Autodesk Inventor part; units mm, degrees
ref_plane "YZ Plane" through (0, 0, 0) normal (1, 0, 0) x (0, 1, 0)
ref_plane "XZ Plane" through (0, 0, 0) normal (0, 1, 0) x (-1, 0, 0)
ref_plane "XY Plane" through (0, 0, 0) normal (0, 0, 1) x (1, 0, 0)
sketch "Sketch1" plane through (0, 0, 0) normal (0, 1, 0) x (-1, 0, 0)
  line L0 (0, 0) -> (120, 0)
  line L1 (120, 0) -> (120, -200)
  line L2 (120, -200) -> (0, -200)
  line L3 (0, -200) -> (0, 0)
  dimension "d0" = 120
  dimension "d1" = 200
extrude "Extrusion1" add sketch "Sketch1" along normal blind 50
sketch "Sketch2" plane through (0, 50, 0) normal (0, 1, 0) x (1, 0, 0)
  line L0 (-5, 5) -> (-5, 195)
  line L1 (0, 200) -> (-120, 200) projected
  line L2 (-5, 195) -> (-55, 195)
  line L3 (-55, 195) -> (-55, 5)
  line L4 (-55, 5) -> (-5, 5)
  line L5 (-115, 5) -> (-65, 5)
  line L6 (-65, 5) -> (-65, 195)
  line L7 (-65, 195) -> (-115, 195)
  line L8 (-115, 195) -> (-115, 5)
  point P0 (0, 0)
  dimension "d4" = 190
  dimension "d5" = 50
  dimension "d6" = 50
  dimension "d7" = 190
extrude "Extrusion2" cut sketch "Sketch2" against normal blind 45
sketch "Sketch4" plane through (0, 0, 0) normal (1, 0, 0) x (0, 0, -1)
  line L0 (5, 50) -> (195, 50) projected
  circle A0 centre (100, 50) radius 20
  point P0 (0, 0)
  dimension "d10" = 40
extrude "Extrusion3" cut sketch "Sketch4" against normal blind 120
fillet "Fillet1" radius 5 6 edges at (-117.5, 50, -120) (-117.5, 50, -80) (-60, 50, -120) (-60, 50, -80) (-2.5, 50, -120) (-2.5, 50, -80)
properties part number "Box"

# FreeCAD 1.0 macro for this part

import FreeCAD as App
import Part
import Sketcher


def edges_at(feature, points):
    """Names of the edges that pass closest to the given points."""
    edges = feature.Shape.Edges
    near = lambda p: min(range(len(edges)), key=lambda i: edges[i].distToShape(Part.Vertex(*p))[0])
    return sorted({f"Edge{near(p) + 1}" for p in points})

doc = App.newDocument("Part")
body = doc.addObject("PartDesign::Body", "Body")

sketch1 = body.newObject("Sketcher::SketchObject", "Sketch")
sketch1.AttachmentSupport = (doc.getObject("XZ_Plane"), [""])
sketch1.MapMode = "FlatFace"
sketch1.addGeometry([
    Part.LineSegment(App.Vector(-120, 0, 0), App.Vector(0, 0, 0)),
    Part.LineSegment(App.Vector(0, 0, 0), App.Vector(0, -200, 0)),
    Part.LineSegment(App.Vector(0, -200, 0), App.Vector(-120, -200, 0)),
    Part.LineSegment(App.Vector(-120, -200, 0), App.Vector(-120, 0, 0)),
], False)
sketch1.addConstraint([
    Sketcher.Constraint("Coincident", 0, 2, 1, 1),
    Sketcher.Constraint("Coincident", 1, 2, 2, 1),
    Sketcher.Constraint("Coincident", 2, 2, 3, 1),
    Sketcher.Constraint("Coincident", 3, 2, 0, 1),
    Sketcher.Constraint("Horizontal", 0),
    Sketcher.Constraint("Vertical", 1),
    Sketcher.Constraint("Horizontal", 2),
    Sketcher.Constraint("Vertical", 3),
    Sketcher.Constraint("Coincident", 0, 2, -1, 1),
    Sketcher.Constraint("DistanceX", 0, 1, 0, 2, 120.0),
    Sketcher.Constraint("DistanceY", 1, 2, 1, 1, 200.0),
])
pad1 = body.newObject("PartDesign::Pad", "Pad")
pad1.Profile = sketch1
pad1.Length = 50
pad1.Reversed = True

sketch2 = body.newObject("Sketcher::SketchObject", "Sketch001")
sketch2.AttachmentSupport = (doc.getObject("XZ_Plane"), [""])
sketch2.MapMode = "FlatFace"
sketch2.AttachmentOffset = App.Placement(App.Vector(0, 0, -50), App.Rotation())
sketch2.addGeometry([
    Part.LineSegment(App.Vector(-55, -5, 0), App.Vector(-5, -5, 0)),
    Part.LineSegment(App.Vector(-5, -5, 0), App.Vector(-5, -195, 0)),
    Part.LineSegment(App.Vector(-5, -195, 0), App.Vector(-55, -195, 0)),
    Part.LineSegment(App.Vector(-55, -195, 0), App.Vector(-55, -5, 0)),
    Part.LineSegment(App.Vector(-115, -195, 0), App.Vector(-115, -5, 0)),
    Part.LineSegment(App.Vector(-115, -5, 0), App.Vector(-65, -5, 0)),
    Part.LineSegment(App.Vector(-65, -5, 0), App.Vector(-65, -195, 0)),
    Part.LineSegment(App.Vector(-65, -195, 0), App.Vector(-115, -195, 0)),
], False)
sketch2.addConstraint([
    Sketcher.Constraint("Coincident", 0, 2, 1, 1),
    Sketcher.Constraint("Coincident", 1, 2, 2, 1),
    Sketcher.Constraint("Coincident", 2, 2, 3, 1),
    Sketcher.Constraint("Coincident", 3, 2, 0, 1),
    Sketcher.Constraint("Coincident", 4, 2, 5, 1),
    Sketcher.Constraint("Coincident", 5, 2, 6, 1),
    Sketcher.Constraint("Coincident", 6, 2, 7, 1),
    Sketcher.Constraint("Coincident", 7, 2, 4, 1),
    Sketcher.Constraint("Horizontal", 0),
    Sketcher.Constraint("Vertical", 1),
    Sketcher.Constraint("Horizontal", 2),
    Sketcher.Constraint("Vertical", 3),
    Sketcher.Constraint("Vertical", 4),
    Sketcher.Constraint("Horizontal", 5),
    Sketcher.Constraint("Vertical", 6),
    Sketcher.Constraint("Horizontal", 7),
    Sketcher.Constraint("Horizontal", 3, 2, 4, 2),
    Sketcher.Constraint("Horizontal", 2, 2, 6, 2),
    Sketcher.Constraint("Equal", 2, 5),
    Sketcher.Constraint("DistanceX", 0, 1, 0, 2, 50.0),
    Sketcher.Constraint("DistanceY", 1, 2, 1, 1, 190.0),
    Sketcher.Constraint("DistanceX", 0, 2, -1, 1, 5.0),
    Sketcher.Constraint("DistanceY", 0, 2, -1, 1, 5.0),
    Sketcher.Constraint("DistanceX", 4, 2, -1, 1, 115.0),
])
pocket1 = body.newObject("PartDesign::Pocket", "Pocket")
pocket1.Profile = sketch2
pocket1.Length = 45
pocket1.Reversed = True

sketch3 = body.newObject("Sketcher::SketchObject", "Sketch002")
sketch3.AttachmentSupport = (doc.getObject("YZ_Plane"), [""])
sketch3.MapMode = "FlatFace"
sketch3.addGeometry(Part.Circle(App.Vector(50, -100, 0), App.Vector(0, 0, 1), 20), False)
sketch3.addConstraint([
    Sketcher.Constraint("Diameter", 0, 40.0),
    Sketcher.Constraint("DistanceX", -1, 1, 0, 3, 50.0),
    Sketcher.Constraint("DistanceY", 0, 3, -1, 1, 100.0),
])
pocket2 = body.newObject("PartDesign::Pocket", "Pocket001")
pocket2.Profile = sketch3
pocket2.Length = 120
doc.recompute()

fillet = body.newObject("PartDesign::Fillet", "Fillet")
fillet.Base = (pocket2, edges_at(pocket2, [
    (-117.5, 50, -120),
    (-117.5, 50, -80),
    (-60, 50, -120),
    (-60, 50, -80),
    (-2.5, 50, -120),
    (-2.5, 50, -80),
]))
fillet.Radius = 5

doc.recompute()
